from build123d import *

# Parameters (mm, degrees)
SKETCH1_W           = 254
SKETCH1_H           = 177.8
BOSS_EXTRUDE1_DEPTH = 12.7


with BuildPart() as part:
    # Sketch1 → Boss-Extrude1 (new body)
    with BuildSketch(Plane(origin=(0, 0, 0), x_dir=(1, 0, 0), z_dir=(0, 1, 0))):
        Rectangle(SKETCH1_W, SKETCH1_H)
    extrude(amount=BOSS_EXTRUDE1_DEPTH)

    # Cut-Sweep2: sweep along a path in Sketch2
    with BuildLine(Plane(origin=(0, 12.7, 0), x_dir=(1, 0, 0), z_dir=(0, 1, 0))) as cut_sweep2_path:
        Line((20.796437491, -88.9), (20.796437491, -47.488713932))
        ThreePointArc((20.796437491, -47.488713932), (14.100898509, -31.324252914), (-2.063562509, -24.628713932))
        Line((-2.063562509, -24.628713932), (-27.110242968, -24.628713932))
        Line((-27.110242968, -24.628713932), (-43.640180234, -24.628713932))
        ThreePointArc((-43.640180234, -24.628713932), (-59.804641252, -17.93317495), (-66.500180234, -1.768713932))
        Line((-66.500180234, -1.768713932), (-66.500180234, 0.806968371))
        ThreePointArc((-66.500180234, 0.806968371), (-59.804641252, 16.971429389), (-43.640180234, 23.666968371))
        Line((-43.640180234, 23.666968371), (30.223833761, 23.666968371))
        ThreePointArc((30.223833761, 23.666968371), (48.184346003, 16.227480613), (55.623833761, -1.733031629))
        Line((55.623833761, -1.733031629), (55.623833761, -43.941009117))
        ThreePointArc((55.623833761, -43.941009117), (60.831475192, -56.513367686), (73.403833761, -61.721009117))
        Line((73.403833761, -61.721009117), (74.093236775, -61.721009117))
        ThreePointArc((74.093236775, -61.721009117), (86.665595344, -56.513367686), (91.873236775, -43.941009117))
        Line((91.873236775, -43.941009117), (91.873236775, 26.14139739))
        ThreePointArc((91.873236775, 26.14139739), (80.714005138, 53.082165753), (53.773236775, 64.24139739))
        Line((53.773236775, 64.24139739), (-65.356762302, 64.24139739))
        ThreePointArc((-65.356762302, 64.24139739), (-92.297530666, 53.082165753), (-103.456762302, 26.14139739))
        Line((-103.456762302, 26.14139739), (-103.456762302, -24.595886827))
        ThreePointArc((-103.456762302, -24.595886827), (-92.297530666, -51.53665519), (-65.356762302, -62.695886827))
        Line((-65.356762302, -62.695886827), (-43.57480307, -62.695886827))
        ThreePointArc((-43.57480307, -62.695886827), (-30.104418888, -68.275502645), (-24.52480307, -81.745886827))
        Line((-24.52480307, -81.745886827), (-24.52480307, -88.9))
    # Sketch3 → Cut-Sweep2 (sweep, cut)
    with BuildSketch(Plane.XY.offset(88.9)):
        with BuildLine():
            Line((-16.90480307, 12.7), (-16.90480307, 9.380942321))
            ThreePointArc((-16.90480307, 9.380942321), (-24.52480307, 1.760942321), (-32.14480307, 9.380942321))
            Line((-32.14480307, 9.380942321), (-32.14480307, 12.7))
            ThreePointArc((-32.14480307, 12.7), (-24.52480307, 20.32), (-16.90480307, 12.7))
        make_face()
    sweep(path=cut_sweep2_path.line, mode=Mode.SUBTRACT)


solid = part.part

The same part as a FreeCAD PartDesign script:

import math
import FreeCAD as App
import Part
import Sketcher

V = App.Vector
Q = App.Units.Quantity


def add_polygon(sketch, points):
    """Adds a closed chain of lines whose ends are joined by coincident constraints."""
    first, n = sketch.GeometryCount, len(points)
    for a, b in zip(points, points[1:] + points[:1]):
        sketch.addGeometry(Part.LineSegment(App.Vector(*a, 0), App.Vector(*b, 0)), False)
    for i in range(n):
        sketch.addConstraint(Sketcher.Constraint("Coincident", first + i, 2, first + (i + 1) % n, 1))

doc = App.newDocument("Part")
body = doc.addObject("PartDesign::Body", "Body")

sketch1 = body.newObject("Sketcher::SketchObject", "Sketch")
sketch1.AttachmentSupport = (doc.getObject("XZ_Plane"), [""])
sketch1.MapMode = "FlatFace"
add_polygon(sketch1, [(-127, -89), (-127, 89), (127, 89), (127, -89)])
sketch1.addConstraint([
    Sketcher.Constraint("Vertical", 0),
    Sketcher.Constraint("Horizontal", 1),
    Sketcher.Constraint("Vertical", 2),
    Sketcher.Constraint("Horizontal", 3),
    Sketcher.Constraint("Symmetric", 0, 2, 2, 2, -1, 1),
    Sketcher.Constraint("DistanceX", 1, 1, 1, 2, Q("10 in")),
    Sketcher.Constraint("DistanceY", 0, 1, 0, 2, Q("7 in")),
])
pad1 = body.newObject("PartDesign::Pad", "Pad")
pad1.Profile = sketch1
pad1.Length = Q("0.5 in")
pad1.Reversed = True

sketch2 = body.newObject("Sketcher::SketchObject", "Sketch001")
sketch2.AttachmentSupport = (doc.getObject("XY_Plane"), [""])
sketch2.MapMode = "FlatFace"
sketch2.AttachmentOffset = App.Placement(V(0, 0, 3.5 * 25.4), App.Rotation())
sketch2.addGeometry([
    Part.LineSegment(V(-16.9, 9.4, 0), V(-16.9, 12.7, 0)),
    Part.ArcOfCircle(Part.Circle(V(-24.5, 12.7, 0), V(0, 0, 1), 7.6), math.radians(0), math.radians(180)),
    Part.LineSegment(V(-32.1, 12.7, 0), V(-32.1, 9.4, 0)),
    Part.ArcOfCircle(Part.Circle(V(-24.5, 9.4, 0), V(0, 0, 1), 7.6), math.radians(180), math.radians(360)),
], False)
sketch2.addConstraint([
    Sketcher.Constraint("Tangent", 0, 2, 1, 1),
    Sketcher.Constraint("Tangent", 1, 2, 2, 1),
    Sketcher.Constraint("Tangent", 2, 2, 3, 1),
    Sketcher.Constraint("Tangent", 3, 2, 0, 1),
    Sketcher.Constraint("Vertical", 0),
    Sketcher.Constraint("Vertical", 2),
    Sketcher.Constraint("Radius", 1, Q("0.3 in")),
    Sketcher.Constraint("DistanceY", -1, 1, 1, 3, Q("0.5 in")),
    Sketcher.Constraint("DistanceY", 0, 1, 0, 2, Q("3.319058 mm")),
    Sketcher.Constraint("DistanceX", 1, 3, -1, 1, Q("24.524803 mm")),
])

sketch3 = body.newObject("Sketcher::SketchObject", "Sketch002")
sketch3.AttachmentSupport = (doc.getObject("XZ_Plane"), [""])
sketch3.MapMode = "FlatFace"
sketch3.AttachmentOffset = App.Placement(V(0, 0, -0.5 * 25.4), App.Rotation())
sketch3.addGeometry([
    Part.LineSegment(V(20.8, 88.9, 0), V(20.8, 47.5, 0)),
    Part.ArcOfCircle(Part.Circle(V(-2.1, 47.5, 0), V(0, 0, 1), 22.9), math.radians(-90), math.radians(0)),
    Part.LineSegment(V(-2.1, 24.6, 0), V(-43.6, 24.6, 0)),
    Part.ArcOfCircle(Part.Circle(V(-43.6, 1.8, 0), V(0, 0, 1), 22.9), math.radians(90), math.radians(180)),
    Part.LineSegment(V(-66.5, 1.8, 0), V(-66.5, -0.8, 0)),
    Part.ArcOfCircle(Part.Circle(V(-43.6, -0.8, 0), V(0, 0, 1), 22.9), math.radians(180), math.radians(270)),
    Part.LineSegment(V(-43.6, -23.7, 0), V(30.2, -23.7, 0)),
    Part.ArcOfCircle(Part.Circle(V(30.2, 1.7, 0), V(0, 0, 1), 25.4), math.radians(-90), math.radians(0)),
    Part.LineSegment(V(55.6, 1.7, 0), V(55.6, 43.9, 0)),
    Part.ArcOfCircle(Part.Circle(V(73.4, 43.9, 0), V(0, 0, 1), 17.8), math.radians(90), math.radians(180)),
    Part.LineSegment(V(73.4, 61.7, 0), V(74.1, 61.7, 0)),
    Part.ArcOfCircle(Part.Circle(V(74.1, 43.9, 0), V(0, 0, 1), 17.8), math.radians(0), math.radians(90)),
    Part.LineSegment(V(91.9, 43.9, 0), V(91.9, -26.1, 0)),
    Part.ArcOfCircle(Part.Circle(V(53.8, -26.1, 0), V(0, 0, 1), 38.1), math.radians(-90), math.radians(0)),
    Part.LineSegment(V(53.8, -64.2, 0), V(-65.4, -64.2, 0)),
    Part.ArcOfCircle(Part.Circle(V(-65.4, -26.1, 0), V(0, 0, 1), 38.1), math.radians(180), math.radians(270)),
    Part.LineSegment(V(-103.5, -26.1, 0), V(-103.5, 24.6, 0)),
    Part.ArcOfCircle(Part.Circle(V(-65.4, 24.6, 0), V(0, 0, 1), 38.1), math.radians(90), math.radians(180)),
    Part.LineSegment(V(-65.4, 62.7, 0), V(-43.6, 62.7, 0)),
    Part.ArcOfCircle(Part.Circle(V(-43.6, 81.7, 0), V(0, 0, 1), 19), math.radians(-90), math.radians(0)),
    Part.LineSegment(V(-24.5, 81.7, 0), V(-24.5, 88.9, 0)),
], False)
sketch3.addConstraint([
    Sketcher.Constraint("Tangent", 0, 2, 1, 2),
    Sketcher.Constraint("Tangent", 1, 1, 2, 1),
    Sketcher.Constraint("Tangent", 2, 2, 3, 1),
    Sketcher.Constraint("Tangent", 3, 2, 4, 1),
    Sketcher.Constraint("Tangent", 4, 2, 5, 1),
    Sketcher.Constraint("Tangent", 5, 2, 6, 1),
    Sketcher.Constraint("Tangent", 6, 2, 7, 1),
    Sketcher.Constraint("Tangent", 7, 2, 8, 1),
    Sketcher.Constraint("Tangent", 8, 2, 9, 2),
    Sketcher.Constraint("Tangent", 9, 1, 10, 1),
    Sketcher.Constraint("Tangent", 10, 2, 11, 2),
    Sketcher.Constraint("Tangent", 11, 1, 12, 1),
    Sketcher.Constraint("Tangent", 12, 2, 13, 2),
    Sketcher.Constraint("Tangent", 13, 1, 14, 1),
    Sketcher.Constraint("Tangent", 14, 2, 15, 2),
    Sketcher.Constraint("Tangent", 15, 1, 16, 1),
    Sketcher.Constraint("Tangent", 16, 2, 17, 2),
    Sketcher.Constraint("Tangent", 17, 1, 18, 1),
    Sketcher.Constraint("Tangent", 18, 2, 19, 1),
    Sketcher.Constraint("Tangent", 19, 2, 20, 1),
    Sketcher.Constraint("Vertical", 0),
    Sketcher.Constraint("Horizontal", 2),
    Sketcher.Constraint("Vertical", 4),
    Sketcher.Constraint("Horizontal", 6),
    Sketcher.Constraint("Vertical", 8),
    Sketcher.Constraint("Horizontal", 10),
    Sketcher.Constraint("Vertical", 12),
    Sketcher.Constraint("Horizontal", 14),
    Sketcher.Constraint("Vertical", 16),
    Sketcher.Constraint("Horizontal", 18),
    Sketcher.Constraint("Vertical", 20),
    Sketcher.Constraint("Equal", 1, 3),
    Sketcher.Constraint("Equal", 3, 5),
    Sketcher.Constraint("Equal", 9, 11),
    Sketcher.Constraint("Equal", 13, 15),
    Sketcher.Constraint("Equal", 15, 17),
    Sketcher.Constraint("Horizontal", 0, 1, 20, 2),
    Sketcher.Constraint("Radius", 7, Q("1 in")),
    Sketcher.Constraint("Radius", 1, Q("0.9 in")),
    Sketcher.Constraint("Radius", 9, Q("0.7 in")),
    Sketcher.Constraint("Radius", 13, Q("1.5 in")),
    Sketcher.Constraint("Radius", 19, Q("0.75 in")),
    Sketcher.Constraint("DistanceY", -1, 1, 0, 1, Q("3.5 in")),
    Sketcher.Constraint("DistanceX", 14, 2, 14, 1, Q("119.129999 mm")),
    Sketcher.Constraint("DistanceX", 18, 1, 18, 2, Q("21.781959 mm")),
    Sketcher.Constraint("DistanceX", 1, 3, 11, 3, Q("76.156799 mm")),
    Sketcher.Constraint("DistanceX", 2, 2, 2, 1, Q("41.576618 mm")),
    Sketcher.Constraint("DistanceX", 6, 1, 6, 2, Q("73.864014 mm")),
    Sketcher.Constraint("DistanceY", 0, 2, 0, 1, Q("41.411286 mm")),
    Sketcher.Constraint("DistanceY", 4, 2, 4, 1, Q("2.575682 mm")),
    Sketcher.Constraint("DistanceY", 8, 1, 8, 2, Q("42.207977 mm")),
    Sketcher.Constraint("DistanceY", 12, 2, 12, 1, Q("70.082407 mm")),
    Sketcher.Constraint("DistanceY", 16, 1, 16, 2, Q("50.737284 mm")),
    Sketcher.Constraint("DistanceX", 3, 3, -1, 1, Q("43.64018 mm")),
])
doc.recompute()

subtractivepipe = body.newObject("PartDesign::SubtractivePipe", "SubtractivePipe")
subtractivepipe.Profile = sketch2
subtractivepipe.Spine = (sketch3, ["Edge1", "Edge2", "Edge3", "Edge4", "Edge5", "Edge6", "Edge7", "Edge8", "Edge9", "Edge10", "Edge11", "Edge12", "Edge13", "Edge14", "Edge15", "Edge16", "Edge17", "Edge18", "Edge19", "Edge20", "Edge21"])

doc.recompute()
